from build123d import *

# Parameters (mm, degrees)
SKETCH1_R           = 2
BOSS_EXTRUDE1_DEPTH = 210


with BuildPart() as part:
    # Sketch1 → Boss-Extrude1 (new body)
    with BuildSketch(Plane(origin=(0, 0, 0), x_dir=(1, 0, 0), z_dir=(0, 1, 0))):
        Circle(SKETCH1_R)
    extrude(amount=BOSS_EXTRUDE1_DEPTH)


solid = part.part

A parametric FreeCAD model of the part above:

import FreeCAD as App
import Part
import Sketcher

V = App.Vector
Q = App.Units.Quantity

doc = App.newDocument("Part")
body = doc.addObject("PartDesign::Body", "Body")

# Sketch on XZ plane
sketch1 = doc.addObject("Sketcher::SketchObject", "Sketch")
body.addObject(sketch1)
sketch1.AttachmentSupport = (doc.XZ_Plane, [""])
sketch1.MapMode = "FlatFace"
sketch1.addGeometry(Part.Circle(V(0, 0, 0), V(0, 0, 1), 2), False)
sketch1.addConstraint([
    Sketcher.Constraint("Coincident", 0, 3, -1, 1),
    Sketcher.Constraint("Diameter", 0, Q("4 mm")),
])
pad1 = doc.addObject("PartDesign::Pad", "Pad")
body.addObject(pad1)
pad1.Profile = sketch1
pad1.Length = 210
pad1.Reversed = True

doc.recompute()
